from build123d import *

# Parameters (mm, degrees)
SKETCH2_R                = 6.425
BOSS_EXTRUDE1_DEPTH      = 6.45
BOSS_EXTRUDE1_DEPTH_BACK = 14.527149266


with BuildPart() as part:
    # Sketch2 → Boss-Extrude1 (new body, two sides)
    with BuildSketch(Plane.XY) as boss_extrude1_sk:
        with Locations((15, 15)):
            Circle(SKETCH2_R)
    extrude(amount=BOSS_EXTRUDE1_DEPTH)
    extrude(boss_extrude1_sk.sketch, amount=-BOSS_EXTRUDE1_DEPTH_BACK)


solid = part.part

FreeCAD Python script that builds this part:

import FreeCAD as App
import Part
import Sketcher
Q = App.Units.Quantity

doc = App.newDocument("Part")
body = doc.addObject("PartDesign::Body", "Body")

# Sketch on XY plane
sketch1 = body.newObject("Sketcher::SketchObject", "Sketch")
sketch1.AttachmentSupport = (doc.getObject("XY_Plane"), [""])
sketch1.MapMode = "FlatFace"
sketch1.addGeometry(Part.Circle(App.Vector(15, 15, 0), App.Vector(0, 0, 1), 6.425), False)
sketch1.addConstraint([
    Sketcher.Constraint("Diameter", 0, Q("12.85 mm")),
    Sketcher.Constraint("DistanceX", -1, 1, 0, 3, Q("15 mm")),
    Sketcher.Constraint("DistanceY", -1, 1, 0, 3, Q("15 mm")),
])
pad1 = body.newObject("PartDesign::Pad", "Pad")
pad1.Profile = sketch1
pad1.Type = "TwoLengths"
pad1.Length = 6.45
pad1.Length2 = 14.527149

doc.recompute()
